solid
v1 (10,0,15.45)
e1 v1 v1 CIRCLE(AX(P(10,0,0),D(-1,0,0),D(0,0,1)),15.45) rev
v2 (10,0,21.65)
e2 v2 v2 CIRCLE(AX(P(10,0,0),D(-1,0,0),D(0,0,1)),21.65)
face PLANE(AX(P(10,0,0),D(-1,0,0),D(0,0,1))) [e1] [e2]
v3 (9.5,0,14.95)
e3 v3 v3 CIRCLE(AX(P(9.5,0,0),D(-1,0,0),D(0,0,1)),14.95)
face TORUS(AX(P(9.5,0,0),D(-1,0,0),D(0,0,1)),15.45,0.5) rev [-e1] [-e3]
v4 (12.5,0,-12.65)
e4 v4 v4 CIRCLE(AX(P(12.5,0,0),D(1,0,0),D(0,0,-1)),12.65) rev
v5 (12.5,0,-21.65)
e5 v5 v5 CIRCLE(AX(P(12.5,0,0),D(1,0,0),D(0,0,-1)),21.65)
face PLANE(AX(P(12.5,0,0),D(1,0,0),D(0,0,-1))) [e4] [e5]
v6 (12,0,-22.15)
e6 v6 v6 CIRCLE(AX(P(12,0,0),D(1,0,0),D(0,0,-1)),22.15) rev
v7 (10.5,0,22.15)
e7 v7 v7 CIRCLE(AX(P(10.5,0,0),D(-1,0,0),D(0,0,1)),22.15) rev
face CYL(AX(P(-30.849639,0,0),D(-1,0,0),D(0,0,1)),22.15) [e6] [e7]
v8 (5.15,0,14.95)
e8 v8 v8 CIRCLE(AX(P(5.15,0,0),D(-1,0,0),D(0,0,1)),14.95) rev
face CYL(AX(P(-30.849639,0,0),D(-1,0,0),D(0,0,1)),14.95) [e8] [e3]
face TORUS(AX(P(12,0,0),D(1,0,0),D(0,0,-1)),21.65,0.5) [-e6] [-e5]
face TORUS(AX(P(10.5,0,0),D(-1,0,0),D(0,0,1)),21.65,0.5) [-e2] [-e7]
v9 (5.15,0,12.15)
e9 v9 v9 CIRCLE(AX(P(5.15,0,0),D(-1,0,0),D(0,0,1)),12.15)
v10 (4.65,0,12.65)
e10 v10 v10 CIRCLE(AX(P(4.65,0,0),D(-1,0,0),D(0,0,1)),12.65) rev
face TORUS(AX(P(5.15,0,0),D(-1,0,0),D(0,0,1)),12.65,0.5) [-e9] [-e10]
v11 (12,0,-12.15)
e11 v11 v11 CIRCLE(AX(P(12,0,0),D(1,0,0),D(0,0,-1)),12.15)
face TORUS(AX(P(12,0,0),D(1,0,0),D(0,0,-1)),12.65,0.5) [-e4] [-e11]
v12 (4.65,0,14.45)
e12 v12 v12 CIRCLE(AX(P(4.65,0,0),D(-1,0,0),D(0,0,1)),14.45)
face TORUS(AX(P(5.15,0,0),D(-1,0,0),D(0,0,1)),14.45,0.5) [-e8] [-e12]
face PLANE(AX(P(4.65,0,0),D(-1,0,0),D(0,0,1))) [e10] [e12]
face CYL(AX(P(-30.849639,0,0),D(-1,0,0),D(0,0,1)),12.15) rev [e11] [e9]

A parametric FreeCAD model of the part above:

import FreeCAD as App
import Part
import Sketcher
from FreeCAD import Vector


def edges_at(feature, points):
    """Names of the edges that pass closest to the given points."""
    edges = feature.Shape.Edges
    near = lambda p: min(range(len(edges)), key=lambda i: edges[i].distToShape(Part.Vertex(*p))[0])
    return sorted({f"Edge{near(p) + 1}" for p in points})


def add_polygon(sketch, points):
    """Adds a closed chain of lines whose ends are joined by coincident constraints."""
    first, n = sketch.GeometryCount, len(points)
    for a, b in zip(points, points[1:] + points[:1]):
        sketch.addGeometry(Part.LineSegment(App.Vector(*a, 0), App.Vector(*b, 0)), False)
    for i in range(n):
        sketch.addConstraint(Sketcher.Constraint("Coincident", first + i, 2, first + (i + 1) % n, 1))

doc = App.newDocument("Part")
params = doc.addObject("Spreadsheet::Sheet", "Params")
for row, (alias, value) in enumerate([
    ("sketch1_height", "10 mm"),
    ("sketch1_width", "2.5 mm"),
    ("sketch1_height2", "7.2 mm"),
    ("sketch1_width2", "5.35 mm"),
    ("revolution_angle", "360 deg"),
    ("fillet_radius", "0.5 mm"),
], start=1):
    params.set(f"A{row}", alias)
    params.set(f"B{row}", "=" + value)
    params.setAlias(f"B{row}", alias)

body = doc.addObject("PartDesign::Body", "Body")

# Sketch on XY plane
sketch1 = body.newObject("Sketcher::SketchObject", "Sketch")
sketch1.AttachmentSupport = (doc.getObject("XY_Plane"), [""])
sketch1.MapMode = "FlatFace"
add_polygon(sketch1, [(12.5, 22.15), (10, 22.15), (10, 14.95), (4.65, 14.95), (4.65, 12.15), (12.5, 12.15)])  # lines 0-5
sketch1.addConstraint([
    Sketcher.Constraint("Horizontal", 0),
    Sketcher.Constraint("Vertical", 1),
    Sketcher.Constraint("Horizontal", 2),
    Sketcher.Constraint("Vertical", 3),
    Sketcher.Constraint("Horizontal", 4),
    Sketcher.Constraint("Vertical", 5),
    Sketcher.Constraint("DistanceY", 5, 1, 5, 2, 10.0),
    Sketcher.Constraint("DistanceX", 0, 2, 0, 1, 2.5),
    Sketcher.Constraint("DistanceY", 1, 2, 1, 1, 7.2),
    Sketcher.Constraint("DistanceX", -1, 1, 0, 2, 10.0),
    Sketcher.Constraint("DistanceX", 2, 2, 2, 1, 5.35),
    Sketcher.Constraint("DistanceY", -1, 1, 0, 2, 22.15),
])
sketch1.setExpression("Constraints[12]", "Params.sketch1_height")
sketch1.setExpression("Constraints[13]", "Params.sketch1_width")
sketch1.setExpression("Constraints[14]", "Params.sketch1_height2")
sketch1.setExpression("Constraints[16]", "Params.sketch1_width2")
revolution = body.newObject("PartDesign::Revolution", "Revolution")
revolution.Profile = sketch1
revolution.ReferenceAxis = (sketch1, ["H_Axis"])
revolution.setExpression("Angle", "Params.revolution_angle")
doc.recompute()

fillet = body.newObject("PartDesign::Fillet", "Fillet")
fillet.Base = (revolution, edges_at(revolution, [
    (10, 0, -22.15),
    (12.5, 0, -22.15),
    (12.5, 0, -12.15),
    (4.65, 0, -12.15),
    (4.65, 0, -14.95),
    (10, 0, -14.95),
]))
fillet.setExpression("Radius", "Params.fillet_radius")

doc.recompute()
